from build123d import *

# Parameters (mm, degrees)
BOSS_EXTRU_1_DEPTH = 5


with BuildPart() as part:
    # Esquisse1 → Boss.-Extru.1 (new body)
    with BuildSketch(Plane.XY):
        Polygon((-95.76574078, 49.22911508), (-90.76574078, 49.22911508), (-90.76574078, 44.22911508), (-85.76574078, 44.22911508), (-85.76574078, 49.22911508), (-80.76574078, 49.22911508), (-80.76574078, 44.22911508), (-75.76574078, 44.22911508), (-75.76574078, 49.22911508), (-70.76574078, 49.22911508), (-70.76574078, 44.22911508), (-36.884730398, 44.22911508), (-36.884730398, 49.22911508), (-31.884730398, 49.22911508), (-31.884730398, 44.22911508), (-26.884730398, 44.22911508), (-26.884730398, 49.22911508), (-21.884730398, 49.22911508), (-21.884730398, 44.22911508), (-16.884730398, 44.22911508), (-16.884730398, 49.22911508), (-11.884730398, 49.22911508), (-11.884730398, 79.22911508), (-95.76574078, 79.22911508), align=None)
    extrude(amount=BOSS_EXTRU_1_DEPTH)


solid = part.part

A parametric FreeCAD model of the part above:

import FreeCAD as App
import Part
import Sketcher

V = App.Vector


def add_polygon(sketch, points):
    """Adds a closed chain of lines whose ends are joined by coincident constraints."""
    first, n = sketch.GeometryCount, len(points)
    for a, b in zip(points, points[1:] + points[:1]):
        sketch.addGeometry(Part.LineSegment(App.Vector(*a, 0), App.Vector(*b, 0)), False)
    for i in range(n):
        sketch.addConstraint(Sketcher.Constraint("Coincident", first + i, 2, first + (i + 1) % n, 1))

doc = App.newDocument("Part")
body = doc.addObject("PartDesign::Body", "Body")

# Sketch on XY plane
sketch1 = body.newObject("Sketcher::SketchObject", "Sketch")
sketch1.AttachmentSupport = (doc.getObject("XY_Plane"), [""])
sketch1.MapMode = "FlatFace"
add_polygon(sketch1, [(-95.8, 49.2), (-90.8, 49.2), (-90.8, 44.2), (-85.8, 44.2), (-85.8, 49.2), (-80.8, 49.2), (-80.8, 44.2), (-75.8, 44.2), (-75.8, 49.2), (-70.8, 49.2), (-70.8, 44.2), (-36.9, 44.2), (-36.9, 49.2), (-31.9, 49.2), (-31.9, 44.2), (-26.9, 44.2), (-26.9, 49.2), (-21.9, 49.2), (-21.9, 44.2), (-16.9, 44.2), (-16.9, 49.2), (-11.9, 49.2), (-11.9, 79.2), (-95.8, 79.2)])  # lines 0-23
sketch1.addConstraint([
    Sketcher.Constraint("Horizontal", 0),
    Sketcher.Constraint("Vertical", 1),
    Sketcher.Constraint("Horizontal", 2),
    Sketcher.Constraint("Vertical", 3),
    Sketcher.Constraint("Horizontal", 4),
    Sketcher.Constraint("Vertical", 5),
    Sketcher.Constraint("Horizontal", 6),
    Sketcher.Constraint("Vertical", 7),
    Sketcher.Constraint("Horizontal", 8),
    Sketcher.Constraint("Vertical", 9),
    Sketcher.Constraint("Horizontal", 10),
    Sketcher.Constraint("Vertical", 11),
    Sketcher.Constraint("Horizontal", 12),
    Sketcher.Constraint("Vertical", 13),
    Sketcher.Constraint("Horizontal", 14),
    Sketcher.Constraint("Vertical", 15),
    Sketcher.Constraint("Horizontal", 16),
    Sketcher.Constraint("Vertical", 17),
    Sketcher.Constraint("Horizontal", 18),
    Sketcher.Constraint("Vertical", 19),
    Sketcher.Constraint("Horizontal", 20),
    Sketcher.Constraint("Vertical", 21),
    Sketcher.Constraint("Horizontal", 22),
    Sketcher.Constraint("Vertical", 23),
    Sketcher.Constraint("Horizontal", 0, 2, 3, 2),
    Sketcher.Constraint("Horizontal", 2, 2, 5, 2),
    Sketcher.Constraint("Horizontal", 4, 2, 7, 2),
    Sketcher.Constraint("Horizontal", 6, 2, 9, 2),
    Sketcher.Constraint("Horizontal", 8, 2, 11, 2),
    Sketcher.Constraint("Horizontal", 10, 2, 13, 2),
    Sketcher.Constraint("Horizontal", 12, 2, 15, 2),
    Sketcher.Constraint("Horizontal", 14, 2, 17, 2),
    Sketcher.Constraint("Horizontal", 16, 2, 19, 2),
    Sketcher.Constraint("Equal", 0, 2),
    Sketcher.Constraint("Equal", 2, 4),
    Sketcher.Constraint("Equal", 4, 6),
    Sketcher.Constraint("Equal", 6, 8),
    Sketcher.Constraint("Equal", 8, 12),
    Sketcher.Constraint("Equal", 12, 14),
    Sketcher.Constraint("Equal", 14, 16),
    Sketcher.Constraint("Equal", 16, 18),
    Sketcher.Constraint("Equal", 18, 20),
    Sketcher.Constraint("Equal", 20, 1),
    Sketcher.Constraint("DistanceX", 0, 1, 0, 2, 5.0),
    Sketcher.Constraint("DistanceY", 21, 1, 21, 2, 30.0),
    Sketcher.Constraint("DistanceX", 10, 1, 10, 2, 33.88101),
    Sketcher.Constraint("DistanceX", 0, 2, -1, 1, 90.765741),
    Sketcher.Constraint("DistanceY", -1, 1, 0, 2, 49.229115),
])
pad1 = body.newObject("PartDesign::Pad", "Pad")
pad1.Profile = sketch1
pad1.Length = 5

doc.recompute()
